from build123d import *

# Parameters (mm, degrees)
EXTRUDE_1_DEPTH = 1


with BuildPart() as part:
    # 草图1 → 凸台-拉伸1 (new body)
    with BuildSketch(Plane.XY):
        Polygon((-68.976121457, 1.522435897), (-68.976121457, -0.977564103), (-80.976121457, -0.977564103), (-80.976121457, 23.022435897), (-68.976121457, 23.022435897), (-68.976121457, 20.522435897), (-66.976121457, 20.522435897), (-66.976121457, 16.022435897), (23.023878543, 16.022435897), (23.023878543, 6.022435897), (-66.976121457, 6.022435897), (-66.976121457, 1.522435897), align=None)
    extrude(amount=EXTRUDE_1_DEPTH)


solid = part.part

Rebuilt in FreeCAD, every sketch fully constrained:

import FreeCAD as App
import Part
import Sketcher
from FreeCAD import Vector

doc = App.newDocument("Part")
params = doc.addObject("Spreadsheet::Sheet", "Params")
for row, (alias, value) in enumerate([
    ("sketch1_width", "2 mm"),
    ("sketch1_width2", "90 mm"),
    ("sketch1_width3", "12 mm"),
    ("sketch1_height", "10 mm"),
    ("sketch1_height2", "24 mm"),
    ("pad1_length", "1 mm"),
], start=1):
    params.set(f"A{row}", alias)
    params.set(f"B{row}", "=" + value)
    params.setAlias(f"B{row}", alias)

body = doc.addObject("PartDesign::Body", "Body")

# Sketch on XY plane
sketch1 = body.newObject("Sketcher::SketchObject", "Sketch")
sketch1.AttachmentSupport = (doc.getObject("XY_Plane"), [""])
sketch1.MapMode = "FlatFace"
sketch1.addGeometry(Part.LineSegment(Vector(-69, -1, 0), Vector(-69, 1.5, 0)), False)
sketch1.addGeometry(Part.LineSegment(Vector(-69, 1.5, 0), Vector(-67, 1.5, 0)), False)
sketch1.addGeometry(Part.LineSegment(Vector(-67, 1.5, 0), Vector(-67, 6, 0)), False)
sketch1.addGeometry(Part.LineSegment(Vector(-67, 6, 0), Vector(23, 6, 0)), False)
sketch1.addGeometry(Part.LineSegment(Vector(23, 6, 0), Vector(23, 16, 0)), False)
sketch1.addGeometry(Part.LineSegment(Vector(23, 16, 0), Vector(-67, 16, 0)), False)
sketch1.addGeometry(Part.LineSegment(Vector(-67, 16, 0), Vector(-67, 20.5, 0)), False)
sketch1.addGeometry(Part.LineSegment(Vector(-67, 20.5, 0), Vector(-69, 20.5, 0)), False)
sketch1.addGeometry(Part.LineSegment(Vector(-69, 20.5, 0), Vector(-69, 23, 0)), False)
sketch1.addGeometry(Part.LineSegment(Vector(-69, 23, 0), Vector(-81, 23, 0)), False)
sketch1.addGeometry(Part.LineSegment(Vector(-81, 23, 0), Vector(-81, -1, 0)), False)
sketch1.addGeometry(Part.LineSegment(Vector(-81, -1, 0), Vector(-69, -1, 0)), False)
sketch1.addConstraint(Sketcher.Constraint("Coincident", 0, 2, 1, 1))
sketch1.addConstraint(Sketcher.Constraint("Coincident", 1, 2, 2, 1))
sketch1.addConstraint(Sketcher.Constraint("Coincident", 2, 2, 3, 1))
sketch1.addConstraint(Sketcher.Constraint("Coincident", 3, 2, 4, 1))
sketch1.addConstraint(Sketcher.Constraint("Coincident", 4, 2, 5, 1))
sketch1.addConstraint(Sketcher.Constraint("Coincident", 5, 2, 6, 1))
sketch1.addConstraint(Sketcher.Constraint("Coincident", 6, 2, 7, 1))
sketch1.addConstraint(Sketcher.Constraint("Coincident", 7, 2, 8, 1))
sketch1.addConstraint(Sketcher.Constraint("Coincident", 8, 2, 9, 1))
sketch1.addConstraint(Sketcher.Constraint("Coincident", 9, 2, 10, 1))
sketch1.addConstraint(Sketcher.Constraint("Coincident", 10, 2, 11, 1))
sketch1.addConstraint(Sketcher.Constraint("Coincident", 11, 2, 0, 1))
sketch1.addConstraint(Sketcher.Constraint("Vertical", 0))
sketch1.addConstraint(Sketcher.Constraint("Horizontal", 1))
sketch1.addConstraint(Sketcher.Constraint("Vertical", 2))
sketch1.addConstraint(Sketcher.Constraint("Horizontal", 3))
sketch1.addConstraint(Sketcher.Constraint("Vertical", 4))
sketch1.addConstraint(Sketcher.Constraint("Horizontal", 5))
sketch1.addConstraint(Sketcher.Constraint("Vertical", 6))
sketch1.addConstraint(Sketcher.Constraint("Horizontal", 7))
sketch1.addConstraint(Sketcher.Constraint("Vertical", 8))
sketch1.addConstraint(Sketcher.Constraint("Horizontal", 9))
sketch1.addConstraint(Sketcher.Constraint("Vertical", 10))
sketch1.addConstraint(Sketcher.Constraint("Horizontal", 11))
sketch1.addConstraint(Sketcher.Constraint("Vertical", 2, 2, 5, 2))
sketch1.addConstraint(Sketcher.Constraint("Vertical", 0, 2, 7, 2))
sketch1.addConstraint(Sketcher.Constraint("Equal", 2, 6))
sketch1.addConstraint(Sketcher.Constraint("Equal", 0, 8))
sketch1.addConstraint(Sketcher.Constraint("DistanceX", 1, 1, 1, 2, 2.0))
sketch1.addConstraint(Sketcher.Constraint("DistanceX", 3, 1, 3, 2, 90.0))
sketch1.addConstraint(Sketcher.Constraint("DistanceX", 9, 2, 9, 1, 12.0))
sketch1.addConstraint(Sketcher.Constraint("DistanceY", 4, 1, 4, 2, 10.0))
sketch1.addConstraint(Sketcher.Constraint("DistanceY", 10, 2, 10, 1, 24.0))
sketch1.addConstraint(Sketcher.Constraint("DistanceY", 0, 1, 0, 2, 2.5))
sketch1.addConstraint(Sketcher.Constraint("DistanceX", 0, 2, -1, 1, 68.976121))
sketch1.addConstraint(Sketcher.Constraint("DistanceY", -1, 1, 0, 2, 1.522436))
sketch1.setExpression("Constraints[28]", "Params.sketch1_width")
sketch1.setExpression("Constraints[29]", "Params.sketch1_width2")
sketch1.setExpression("Constraints[30]", "Params.sketch1_width3")
sketch1.setExpression("Constraints[31]", "Params.sketch1_height")
sketch1.setExpression("Constraints[32]", "Params.sketch1_height2")
pad1 = body.newObject("PartDesign::Pad", "Pad")
pad1.Profile = sketch1
pad1.setExpression("Length", "Params.pad1_length")

doc.recompute()
